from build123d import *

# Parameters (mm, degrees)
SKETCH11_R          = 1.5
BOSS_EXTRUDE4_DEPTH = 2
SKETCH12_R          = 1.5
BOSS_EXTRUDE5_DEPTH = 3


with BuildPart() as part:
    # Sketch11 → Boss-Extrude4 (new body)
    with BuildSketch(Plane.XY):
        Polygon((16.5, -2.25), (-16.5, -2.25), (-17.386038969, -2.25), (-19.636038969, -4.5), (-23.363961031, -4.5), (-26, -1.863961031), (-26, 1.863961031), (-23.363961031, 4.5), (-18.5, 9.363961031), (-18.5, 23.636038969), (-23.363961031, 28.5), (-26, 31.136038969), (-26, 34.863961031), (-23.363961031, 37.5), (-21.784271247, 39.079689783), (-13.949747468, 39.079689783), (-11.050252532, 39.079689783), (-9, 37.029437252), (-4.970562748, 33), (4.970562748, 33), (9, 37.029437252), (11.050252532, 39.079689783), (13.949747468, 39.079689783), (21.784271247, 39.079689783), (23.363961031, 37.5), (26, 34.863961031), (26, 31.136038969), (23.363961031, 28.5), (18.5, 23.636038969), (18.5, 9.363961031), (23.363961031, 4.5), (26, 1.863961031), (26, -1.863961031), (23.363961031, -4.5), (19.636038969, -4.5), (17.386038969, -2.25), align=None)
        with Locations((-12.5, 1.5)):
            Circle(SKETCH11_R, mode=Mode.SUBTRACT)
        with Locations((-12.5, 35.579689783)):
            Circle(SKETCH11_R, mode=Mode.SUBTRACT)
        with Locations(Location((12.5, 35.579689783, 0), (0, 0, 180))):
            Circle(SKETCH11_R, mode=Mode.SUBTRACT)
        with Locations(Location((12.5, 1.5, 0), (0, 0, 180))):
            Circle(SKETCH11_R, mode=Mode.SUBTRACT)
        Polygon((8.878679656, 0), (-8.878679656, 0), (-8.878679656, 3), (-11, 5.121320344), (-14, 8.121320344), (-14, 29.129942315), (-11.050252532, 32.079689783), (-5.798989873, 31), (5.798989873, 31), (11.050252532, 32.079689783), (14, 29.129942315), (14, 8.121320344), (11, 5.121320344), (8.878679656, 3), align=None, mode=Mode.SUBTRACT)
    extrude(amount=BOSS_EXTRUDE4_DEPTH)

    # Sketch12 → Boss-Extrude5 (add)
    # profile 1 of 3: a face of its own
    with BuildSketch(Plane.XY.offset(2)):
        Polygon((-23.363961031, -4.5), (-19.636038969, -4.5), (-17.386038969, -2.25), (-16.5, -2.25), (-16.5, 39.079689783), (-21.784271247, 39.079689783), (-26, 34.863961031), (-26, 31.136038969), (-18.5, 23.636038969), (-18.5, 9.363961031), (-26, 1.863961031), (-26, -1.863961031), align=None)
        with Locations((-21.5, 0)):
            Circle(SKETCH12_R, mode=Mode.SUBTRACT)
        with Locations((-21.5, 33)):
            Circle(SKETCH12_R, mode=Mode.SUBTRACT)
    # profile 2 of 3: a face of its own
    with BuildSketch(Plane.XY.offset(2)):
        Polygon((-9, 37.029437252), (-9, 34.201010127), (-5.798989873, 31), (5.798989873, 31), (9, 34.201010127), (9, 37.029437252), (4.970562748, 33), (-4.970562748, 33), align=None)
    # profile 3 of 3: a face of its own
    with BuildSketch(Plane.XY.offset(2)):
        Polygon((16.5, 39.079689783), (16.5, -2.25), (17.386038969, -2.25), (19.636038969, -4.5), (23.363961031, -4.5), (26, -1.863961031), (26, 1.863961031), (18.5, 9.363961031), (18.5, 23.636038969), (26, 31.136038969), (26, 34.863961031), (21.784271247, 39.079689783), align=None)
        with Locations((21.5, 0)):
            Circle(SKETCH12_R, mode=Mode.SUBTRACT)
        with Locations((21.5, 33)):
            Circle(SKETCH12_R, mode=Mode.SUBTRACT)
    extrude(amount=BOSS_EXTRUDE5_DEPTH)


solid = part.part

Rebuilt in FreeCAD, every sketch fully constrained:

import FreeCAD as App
import Part
import Sketcher

doc = App.newDocument("Part")
body = doc.addObject("PartDesign::Body", "Body")

sketch1 = doc.addObject("Sketcher::SketchObject", "Sketch")
body.addObject(sketch1)
sketch1.AttachmentSupport = (doc.XY_Plane, [""])
sketch1.MapMode = "FlatFace"
sketch1.addGeometry([
    Part.LineSegment(App.Vector(-17.4, -2.2, 0), App.Vector(17.4, -2.2, 0)),
    Part.LineSegment(App.Vector(17.4, -2.2, 0), App.Vector(19.6, -4.5, 0)),
    Part.LineSegment(App.Vector(19.6, -4.5, 0), App.Vector(23.4, -4.5, 0)),
    Part.LineSegment(App.Vector(23.4, -4.5, 0), App.Vector(26, -1.9, 0)),
    Part.LineSegment(App.Vector(26, -1.9, 0), App.Vector(26, 1.9, 0)),
    Part.LineSegment(App.Vector(26, 1.9, 0), App.Vector(18.5, 9.4, 0)),
    Part.LineSegment(App.Vector(18.5, 9.4, 0), App.Vector(18.5, 23.6, 0)),
    Part.LineSegment(App.Vector(18.5, 23.6, 0), App.Vector(26, 31.1, 0)),
    Part.LineSegment(App.Vector(26, 31.1, 0), App.Vector(26, 34.9, 0)),
    Part.LineSegment(App.Vector(26, 34.9, 0), App.Vector(23.4, 37.5, 0)),
    Part.LineSegment(App.Vector(23.4, 37.5, 0), App.Vector(21.8, 39.1, 0)),
    Part.LineSegment(App.Vector(21.8, 39.1, 0), App.Vector(11.1, 39.1, 0)),
    Part.LineSegment(App.Vector(11.1, 39.1, 0), App.Vector(9, 37, 0)),
    Part.LineSegment(App.Vector(9, 37, 0), App.Vector(5, 33, 0)),
    Part.LineSegment(App.Vector(5, 33, 0), App.Vector(-5, 33, 0)),
    Part.LineSegment(App.Vector(-5, 33, 0), App.Vector(-9, 37, 0)),
    Part.LineSegment(App.Vector(-9, 37, 0), App.Vector(-11.1, 39.1, 0)),
    Part.LineSegment(App.Vector(-11.1, 39.1, 0), App.Vector(-21.8, 39.1, 0)),
    Part.LineSegment(App.Vector(-21.8, 39.1, 0), App.Vector(-23.4, 37.5, 0)),
    Part.LineSegment(App.Vector(-23.4, 37.5, 0), App.Vector(-26, 34.9, 0)),
    Part.LineSegment(App.Vector(-26, 34.9, 0), App.Vector(-26, 31.1, 0)),
    Part.LineSegment(App.Vector(-26, 31.1, 0), App.Vector(-18.5, 23.6, 0)),
    Part.LineSegment(App.Vector(-18.5, 23.6, 0), App.Vector(-18.5, 9.4, 0)),
    Part.LineSegment(App.Vector(-18.5, 9.4, 0), App.Vector(-26, 1.9, 0)),
    Part.LineSegment(App.Vector(-26, 1.9, 0), App.Vector(-26, -1.9, 0)),
    Part.LineSegment(App.Vector(-26, -1.9, 0), App.Vector(-23.4, -4.5, 0)),
    Part.LineSegment(App.Vector(-23.4, -4.5, 0), App.Vector(-19.6, -4.5, 0)),
    Part.LineSegment(App.Vector(-19.6, -4.5, 0), App.Vector(-17.4, -2.2, 0)),
    Part.Circle(App.Vector(12.5, 1.5, 0), App.Vector(0, 0, 1), 1.5),
    Part.Circle(App.Vector(-12.5, 1.5, 0), App.Vector(0, 0, 1), 1.5),
    Part.LineSegment(App.Vector(8.9, 0, 0), App.Vector(-8.9, 0, 0)),
    Part.LineSegment(App.Vector(-8.9, 0, 0), App.Vector(-8.9, 3, 0)),
    Part.LineSegment(App.Vector(-8.9, 3, 0), App.Vector(-14, 8.1, 0)),
    Part.LineSegment(App.Vector(-14, 8.1, 0), App.Vector(-14, 29.1, 0)),
    Part.LineSegment(App.Vector(-14, 29.1, 0), App.Vector(-11.1, 32.1, 0)),
    Part.LineSegment(App.Vector(-11.1, 32.1, 0), App.Vector(-5.8, 31, 0)),
    Part.LineSegment(App.Vector(-5.8, 31, 0), App.Vector(5.8, 31, 0)),
    Part.LineSegment(App.Vector(5.8, 31, 0), App.Vector(11.1, 32.1, 0)),
    Part.LineSegment(App.Vector(11.1, 32.1, 0), App.Vector(14, 29.1, 0)),
    Part.LineSegment(App.Vector(14, 29.1, 0), App.Vector(14, 8.1, 0)),
    Part.LineSegment(App.Vector(14, 8.1, 0), App.Vector(8.9, 3, 0)),
    Part.LineSegment(App.Vector(8.9, 3, 0), App.Vector(8.9, 0, 0)),
    Part.Circle(App.Vector(12.5, 35.6, 0), App.Vector(0, 0, 1), 1.5),
    Part.Circle(App.Vector(-12.5, 35.6, 0), App.Vector(0, 0, 1), 1.5),
], False)
sketch1.addConstraint([
    Sketcher.Constraint("Coincident", 0, 2, 1, 1),
    Sketcher.Constraint("Coincident", 1, 2, 2, 1),
    Sketcher.Constraint("Coincident", 2, 2, 3, 1),
    Sketcher.Constraint("Coincident", 3, 2, 4, 1),
    Sketcher.Constraint("Coincident", 4, 2, 5, 1),
    Sketcher.Constraint("Coincident", 5, 2, 6, 1),
    Sketcher.Constraint("Coincident", 6, 2, 7, 1),
    Sketcher.Constraint("Coincident", 7, 2, 8, 1),
    Sketcher.Constraint("Coincident", 8, 2, 9, 1),
    Sketcher.Constraint("Coincident", 9, 2, 10, 1),
    Sketcher.Constraint("Coincident", 10, 2, 11, 1),
    Sketcher.Constraint("Coincident", 11, 2, 12, 1),
    Sketcher.Constraint("Coincident", 12, 2, 13, 1),
    Sketcher.Constraint("Coincident", 13, 2, 14, 1),
    Sketcher.Constraint("Coincident", 14, 2, 15, 1),
    Sketcher.Constraint("Coincident", 15, 2, 16, 1),
    Sketcher.Constraint("Coincident", 16, 2, 17, 1),
    Sketcher.Constraint("Coincident", 17, 2, 18, 1),
    Sketcher.Constraint("Coincident", 18, 2, 19, 1),
    Sketcher.Constraint("Coincident", 19, 2, 20, 1),
    Sketcher.Constraint("Coincident", 20, 2, 21, 1),
    Sketcher.Constraint("Coincident", 21, 2, 22, 1),
    Sketcher.Constraint("Coincident", 22, 2, 23, 1),
    Sketcher.Constraint("Coincident", 23, 2, 24, 1),
    Sketcher.Constraint("Coincident", 24, 2, 25, 1),
    Sketcher.Constraint("Coincident", 25, 2, 26, 1),
    Sketcher.Constraint("Coincident", 26, 2, 27, 1),
    Sketcher.Constraint("Coincident", 27, 2, 0, 1),
    Sketcher.Constraint("Coincident", 30, 2, 31, 1),
    Sketcher.Constraint("Coincident", 31, 2, 32, 1),
    Sketcher.Constraint("Coincident", 32, 2, 33, 1),
    Sketcher.Constraint("Coincident", 33, 2, 34, 1),
    Sketcher.Constraint("Coincident", 34, 2, 35, 1),
    Sketcher.Constraint("Coincident", 35, 2, 36, 1),
    Sketcher.Constraint("Coincident", 36, 2, 37, 1),
    Sketcher.Constraint("Coincident", 37, 2, 38, 1),
    Sketcher.Constraint("Coincident", 38, 2, 39, 1),
    Sketcher.Constraint("Coincident", 39, 2, 40, 1),
    Sketcher.Constraint("Coincident", 40, 2, 41, 1),
    Sketcher.Constraint("Coincident", 41, 2, 30, 1),
    Sketcher.Constraint("Horizontal", 0),
    Sketcher.Constraint("Horizontal", 2),
    Sketcher.Constraint("Vertical", 4),
    Sketcher.Constraint("Vertical", 6),
    Sketcher.Constraint("Vertical", 8),
    Sketcher.Constraint("Horizontal", 11),
    Sketcher.Constraint("Horizontal", 14),
    Sketcher.Constraint("Horizontal", 17),
    Sketcher.Constraint("Vertical", 20),
    Sketcher.Constraint("Vertical", 22),
    Sketcher.Constraint("Vertical", 24),
    Sketcher.Constraint("Horizontal", 26),
    Sketcher.Constraint("Horizontal", 30),
    Sketcher.Constraint("Vertical", 31),
    Sketcher.Constraint("Vertical", 33),
    Sketcher.Constraint("Horizontal", 36),
    Sketcher.Constraint("Vertical", 39),
    Sketcher.Constraint("Vertical", 41),
    Sketcher.Constraint("Equal", 28, 29),
    Sketcher.Constraint("Equal", 29, 42),
    Sketcher.Constraint("Equal", 42, 43),
    Sketcher.Constraint("Symmetric", 3, 2, 23, 2, -1, 1),
    Sketcher.Constraint("Symmetric", 30, 2, 41, 2, -1, 1),
    Sketcher.Constraint("Symmetric", 28, 3, 29, 3, -2),
    Sketcher.Constraint("Symmetric", 42, 3, 43, 3, -2),
    Sketcher.Constraint("Symmetric", 12, 2, 15, 2, -2),
    Sketcher.Constraint("Symmetric", 11, 2, 16, 2, -2),
    Sketcher.Constraint("Symmetric", 9, 2, 18, 2, -2),
    Sketcher.Constraint("Symmetric", 8, 2, 19, 2, -2),
    Sketcher.Constraint("Symmetric", 6, 2, 21, 2, -2),
    Sketcher.Constraint("Symmetric", 2, 2, 25, 2, -2),
    Sketcher.Constraint("Symmetric", 34, 2, 37, 2, -2),
    Sketcher.Constraint("Symmetric", 33, 2, 38, 2, -2),
    Sketcher.Constraint("Perpendicular", 1, 3),
    Sketcher.Constraint("Perpendicular", 3, 5),
    Sketcher.Constraint("Perpendicular", 5, 7),
    Sketcher.Constraint("Perpendicular", 7, 9),
    Sketcher.Constraint("Parallel", 9, 10),
    Sketcher.Constraint("Perpendicular", 10, 12),
    Sketcher.Constraint("Parallel", 12, 13),
    Sketcher.Constraint("Perpendicular", 13, 15),
    Sketcher.Constraint("Parallel", 15, 16),
    Sketcher.Constraint("Perpendicular", 16, 18),
    Sketcher.Constraint("Perpendicular", 19, 21),
    Sketcher.Constraint("Perpendicular", 21, 23),
    Sketcher.Constraint("Perpendicular", 23, 25),
    Sketcher.Constraint("Perpendicular", 25, 27),
    Sketcher.Constraint("Perpendicular", 27, 32),
    Sketcher.Constraint("Perpendicular", 32, 34),
    Sketcher.Constraint("Perpendicular", 38, 40),
    Sketcher.Constraint("Horizontal", 5, 2, 22, 2),
    Sketcher.Constraint("Horizontal", 32, 2, 39, 2),
    Sketcher.Constraint("Vertical", 28, 3, 42, 3),
    Sketcher.Constraint("Vertical", 4, 2, 7, 2),
    Sketcher.Constraint("Vertical", 2, 2, 9, 2),
    Sketcher.Constraint("Vertical", 16, 2, 34, 2),
    Sketcher.Constraint("Equal", 2, 26),
    Sketcher.Constraint("Equal", 26, 4),
    Sketcher.Constraint("Equal", 4, 8),
    Sketcher.Constraint("Equal", 35, 37),
    Sketcher.Constraint("Diameter", 28, 3.0),
    Sketcher.Constraint("DistanceY", 31, 1, 31, 2, 3.0),
    Sketcher.Constraint("DistanceX", -1, 1, 3, 2, 26.0),
    Sketcher.Constraint("DistanceX", -1, 1, 12, 2, 9.0),
    Sketcher.Constraint("DistanceY", -1, 1, 13, 2, 33.0),
    Sketcher.Constraint("DistanceX", 32, 2, -1, 1, 14.0),
    Sketcher.Constraint("DistanceY", -1, 1, 35, 2, 31.0),
    Sketcher.Constraint("DistanceX", 29, 3, 28, 3, 25.0),
    Sketcher.Constraint("DistanceY", 1, 2, 28, 3, 6.0),
    Sketcher.Constraint("DistanceX", 28, 3, 5, 2, 6.0),
    Sketcher.Constraint("DistanceY", 4, 2, 8, 2, 33.0),
    Sketcher.Constraint("DistanceY", 34, 2, 16, 2, 7.0),
    Sketcher.Constraint("DistanceY", -1, 1, 28, 3, 1.5),
    Sketcher.Constraint("DistanceY", 42, 3, 10, 2, 3.5),
    Sketcher.Constraint("DistanceY", 0, 2, -1, 1, 2.25),
    Sketcher.Constraint("DistanceX", 11, 2, 11, 1, 10.734019),
    Sketcher.Constraint("DistanceX", 30, 2, 30, 1, 17.757359),
    Sketcher.Constraint("DistanceX", 36, 1, 36, 2, 11.59798),
    Sketcher.Constraint("DistanceY", 33, 1, 33, 2, 21.008622),
    Sketcher.Constraint("DistanceY", 6, 2, 12, 2, 13.393398),
])
pad1 = doc.addObject("PartDesign::Pad", "Pad")
body.addObject(pad1)
pad1.Profile = sketch1
pad1.Length = 2

sketch2 = doc.addObject("Sketcher::SketchObject", "Sketch001")
body.addObject(sketch2)
sketch2.AttachmentSupport = (doc.XY_Plane, [""])
sketch2.MapMode = "FlatFace"
sketch2.AttachmentOffset = App.Placement(App.Vector(0, 0, 2), App.Rotation())
sketch2.addGeometry([
    Part.LineSegment(App.Vector(-23.4, -4.5, 0), App.Vector(-19.6, -4.5, 0)),
    Part.LineSegment(App.Vector(-19.6, -4.5, 0), App.Vector(-17.4, -2.2, 0)),
    Part.LineSegment(App.Vector(-17.4, -2.2, 0), App.Vector(-16.5, -2.2, 0)),
    Part.LineSegment(App.Vector(-16.5, -2.2, 0), App.Vector(-16.5, 39.1, 0)),
    Part.LineSegment(App.Vector(-16.5, 39.1, 0), App.Vector(-21.8, 39.1, 0)),
    Part.LineSegment(App.Vector(-21.8, 39.1, 0), App.Vector(-26, 34.9, 0)),
    Part.LineSegment(App.Vector(-26, 34.9, 0), App.Vector(-26, 31.1, 0)),
    Part.LineSegment(App.Vector(-26, 31.1, 0), App.Vector(-18.5, 23.6, 0)),
    Part.LineSegment(App.Vector(-18.5, 23.6, 0), App.Vector(-18.5, 9.4, 0)),
    Part.LineSegment(App.Vector(-18.5, 9.4, 0), App.Vector(-26, 1.9, 0)),
    Part.LineSegment(App.Vector(-26, 1.9, 0), App.Vector(-26, -1.9, 0)),
    Part.LineSegment(App.Vector(-26, -1.9, 0), App.Vector(-23.4, -4.5, 0)),
    Part.Circle(App.Vector(-21.5, 0, 0), App.Vector(0, 0, 1), 1.5),
    Part.Circle(App.Vector(-21.5, 33, 0), App.Vector(0, 0, 1), 1.5),
    Part.LineSegment(App.Vector(-9, 37, 0), App.Vector(-9, 34.2, 0)),
    Part.LineSegment(App.Vector(-9, 34.2, 0), App.Vector(-5.8, 31, 0)),
    Part.LineSegment(App.Vector(-5.8, 31, 0), App.Vector(5.8, 31, 0)),
    Part.LineSegment(App.Vector(5.8, 31, 0), App.Vector(9, 34.2, 0)),
    Part.LineSegment(App.Vector(9, 34.2, 0), App.Vector(9, 37, 0)),
    Part.LineSegment(App.Vector(9, 37, 0), App.Vector(5, 33, 0)),
    Part.LineSegment(App.Vector(5, 33, 0), App.Vector(-5, 33, 0)),
    Part.LineSegment(App.Vector(-5, 33, 0), App.Vector(-9, 37, 0)),
    Part.LineSegment(App.Vector(16.5, 39.1, 0), App.Vector(16.5, -2.2, 0)),
    Part.LineSegment(App.Vector(16.5, -2.2, 0), App.Vector(17.4, -2.2, 0)),
    Part.LineSegment(App.Vector(17.4, -2.2, 0), App.Vector(19.6, -4.5, 0)),
    Part.LineSegment(App.Vector(19.6, -4.5, 0), App.Vector(23.4, -4.5, 0)),
    Part.LineSegment(App.Vector(23.4, -4.5, 0), App.Vector(26, -1.9, 0)),
    Part.LineSegment(App.Vector(26, -1.9, 0), App.Vector(26, 1.9, 0)),
    Part.LineSegment(App.Vector(26, 1.9, 0), App.Vector(18.5, 9.4, 0)),
    Part.LineSegment(App.Vector(18.5, 9.4, 0), App.Vector(18.5, 23.6, 0)),
    Part.LineSegment(App.Vector(18.5, 23.6, 0), App.Vector(26, 31.1, 0)),
    Part.LineSegment(App.Vector(26, 31.1, 0), App.Vector(26, 34.9, 0)),
    Part.LineSegment(App.Vector(26, 34.9, 0), App.Vector(21.8, 39.1, 0)),
    Part.LineSegment(App.Vector(21.8, 39.1, 0), App.Vector(16.5, 39.1, 0)),
    Part.Circle(App.Vector(21.5, 0, 0), App.Vector(0, 0, 1), 1.5),
    Part.Circle(App.Vector(21.5, 33, 0), App.Vector(0, 0, 1), 1.5),
], False)
sketch2.addConstraint([
    Sketcher.Constraint("Coincident", 0, 2, 1, 1),
    Sketcher.Constraint("Coincident", 1, 2, 2, 1),
    Sketcher.Constraint("Coincident", 2, 2, 3, 1),
    Sketcher.Constraint("Coincident", 3, 2, 4, 1),
    Sketcher.Constraint("Coincident", 4, 2, 5, 1),
    Sketcher.Constraint("Coincident", 5, 2, 6, 1),
    Sketcher.Constraint("Coincident", 6, 2, 7, 1),
    Sketcher.Constraint("Coincident", 7, 2, 8, 1),
    Sketcher.Constraint("Coincident", 8, 2, 9, 1),
    Sketcher.Constraint("Coincident", 9, 2, 10, 1),
    Sketcher.Constraint("Coincident", 10, 2, 11, 1),
    Sketcher.Constraint("Coincident", 11, 2, 0, 1),
    Sketcher.Constraint("Coincident", 14, 2, 15, 1),
    Sketcher.Constraint("Coincident", 15, 2, 16, 1),
    Sketcher.Constraint("Coincident", 16, 2, 17, 1),
    Sketcher.Constraint("Coincident", 17, 2, 18, 1),
    Sketcher.Constraint("Coincident", 18, 2, 19, 1),
    Sketcher.Constraint("Coincident", 19, 2, 20, 1),
    Sketcher.Constraint("Coincident", 20, 2, 21, 1),
    Sketcher.Constraint("Coincident", 21, 2, 14, 1),
    Sketcher.Constraint("Coincident", 22, 2, 23, 1),
    Sketcher.Constraint("Coincident", 23, 2, 24, 1),
    Sketcher.Constraint("Coincident", 24, 2, 25, 1),
    Sketcher.Constraint("Coincident", 25, 2, 26, 1),
    Sketcher.Constraint("Coincident", 26, 2, 27, 1),
    Sketcher.Constraint("Coincident", 27, 2, 28, 1),
    Sketcher.Constraint("Coincident", 28, 2, 29, 1),
    Sketcher.Constraint("Coincident", 29, 2, 30, 1),
    Sketcher.Constraint("Coincident", 30, 2, 31, 1),
    Sketcher.Constraint("Coincident", 31, 2, 32, 1),
    Sketcher.Constraint("Coincident", 32, 2, 33, 1),
    Sketcher.Constraint("Coincident", 33, 2, 22, 1),
    Sketcher.Constraint("Horizontal", 0),
    Sketcher.Constraint("Horizontal", 2),
    Sketcher.Constraint("Vertical", 3),
    Sketcher.Constraint("Horizontal", 4),
    Sketcher.Constraint("Vertical", 6),
    Sketcher.Constraint("Vertical", 8),
    Sketcher.Constraint("Vertical", 10),
    Sketcher.Constraint("Vertical", 14),
    Sketcher.Constraint("Horizontal", 16),
    Sketcher.Constraint("Vertical", 18),
    Sketcher.Constraint("Horizontal", 20),
    Sketcher.Constraint("Vertical", 22),
    Sketcher.Constraint("Horizontal", 23),
    Sketcher.Constraint("Horizontal", 25),
    Sketcher.Constraint("Vertical", 27),
    Sketcher.Constraint("Vertical", 29),
    Sketcher.Constraint("Vertical", 31),
    Sketcher.Constraint("Horizontal", 33),
    Sketcher.Constraint("Equal", 12, 13),
    Sketcher.Constraint("Equal", 13, 34),
    Sketcher.Constraint("Equal", 34, 35),
    Sketcher.Constraint("Symmetric", 12, 3, 34, 3, -1, 1),
    Sketcher.Constraint("Symmetric", 9, 2, 26, 2, -1, 1),
    Sketcher.Constraint("Symmetric", 13, 3, 35, 3, -2),
    Sketcher.Constraint("Symmetric", 14, 2, 17, 2, -2),
    Sketcher.Constraint("Symmetric", 2, 2, 22, 2, -2),
    Sketcher.Constraint("Symmetric", 0, 2, 24, 2, -2),
    Sketcher.Constraint("Symmetric", 8, 2, 28, 2, -2),
    Sketcher.Constraint("Symmetric", 6, 2, 30, 2, -2),
    Sketcher.Constraint("Symmetric", 4, 2, 32, 2, -2),
    Sketcher.Constraint("PointOnObject", 12, 3, -1),
    Sketcher.Constraint("Parallel", 1, 5),
    Sketcher.Constraint("Perpendicular", 5, 7),
    Sketcher.Constraint("Perpendicular", 7, 9),
    Sketcher.Constraint("Perpendicular", 9, 11),
    Sketcher.Constraint("Parallel", 11, 15),
    Sketcher.Constraint("Perpendicular", 15, 17),
    Sketcher.Constraint("Parallel", 17, 19),
    Sketcher.Constraint("Perpendicular", 19, 21),
    Sketcher.Constraint("Parallel", 21, 24),
    Sketcher.Constraint("Perpendicular", 24, 26),
    Sketcher.Constraint("Perpendicular", 26, 28),
    Sketcher.Constraint("Perpendicular", 28, 30),
    Sketcher.Constraint("Perpendicular", 30, 32),
    Sketcher.Constraint("Horizontal", 35, 3, 19, 2),
    Sketcher.Constraint("Horizontal", 18, 2, 21, 2),
    Sketcher.Constraint("Horizontal", 10, 2, 26, 2),
    Sketcher.Constraint("Horizontal", 9, 2, 27, 2),
    Sketcher.Constraint("Vertical", 12, 3, 13, 3),
    Sketcher.Constraint("Vertical", 6, 2, 9, 2),
    Sketcher.Constraint("Equal", 25, 6),
    Sketcher.Constraint("Equal", 6, 10),
    Sketcher.Constraint("Diameter", 12, 3.0),
    Sketcher.Constraint("DistanceY", -1, 1, 13, 3, 33.0),
    Sketcher.Constraint("DistanceX", 5, 2, -1, 1, 26.0),
    Sketcher.Constraint("DistanceX", 14, 2, -1, 1, 9.0),
    Sketcher.Constraint("DistanceY", -1, 1, 15, 2, 31.0),
    Sketcher.Constraint("DistanceX", 12, 3, 34, 3, 43.0),
    Sketcher.Constraint("DistanceX", 12, 3, 2, 2, 5.0),
    Sketcher.Constraint("DistanceX", 13, 3, 7, 2, 3.0),
    Sketcher.Constraint("DistanceY", 0, 2, -1, 1, 4.5),
    Sketcher.Constraint("DistanceY", 1, 2, -1, 1, 2.25),
    Sketcher.Constraint("DistanceX", 2, 1, 2, 2, 0.886039),
    Sketcher.Constraint("DistanceX", 4, 2, 4, 1, 5.284271),
    Sketcher.Constraint("DistanceX", 16, 1, 16, 2, 11.59798),
    Sketcher.Constraint("DistanceY", 3, 1, 3, 2, 41.32969),
    Sketcher.Constraint("DistanceY", 29, 2, 18, 2, 13.393398),
])
pad2 = doc.addObject("PartDesign::Pad", "Pad001")
body.addObject(pad2)
pad2.Profile = sketch2
pad2.Length = 3

doc.recompute()
